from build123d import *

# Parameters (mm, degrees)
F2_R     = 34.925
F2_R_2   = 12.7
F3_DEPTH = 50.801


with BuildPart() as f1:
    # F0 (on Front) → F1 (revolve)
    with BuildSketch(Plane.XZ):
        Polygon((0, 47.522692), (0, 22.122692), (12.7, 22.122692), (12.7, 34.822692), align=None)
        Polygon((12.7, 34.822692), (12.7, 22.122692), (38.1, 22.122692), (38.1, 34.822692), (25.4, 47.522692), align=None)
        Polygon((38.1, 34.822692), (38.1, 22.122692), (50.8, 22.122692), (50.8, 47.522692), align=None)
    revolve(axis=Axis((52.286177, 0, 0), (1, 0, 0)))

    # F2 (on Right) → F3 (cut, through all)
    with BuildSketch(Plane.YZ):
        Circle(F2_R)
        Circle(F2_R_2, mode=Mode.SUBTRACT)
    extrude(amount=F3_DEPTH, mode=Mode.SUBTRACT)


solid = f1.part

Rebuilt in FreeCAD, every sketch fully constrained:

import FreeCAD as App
import Part
import Sketcher
from FreeCAD import Vector
Q = App.Units.Quantity

doc = App.newDocument("Part")
body = doc.addObject("PartDesign::Body", "Body")
body.AllowCompound = True

# Sketch on XZ plane
sketch1 = body.newObject("Sketcher::SketchObject", "Sketch")
sketch1.AttachmentSupport = (doc.getObject("XZ_Plane"), [""])
sketch1.MapMode = "FlatFace"
sketch1.addGeometry(Part.LineSegment(Vector(0, 47.522692, 0), Vector(0, 22.122692, 0)), False)
sketch1.addGeometry(Part.LineSegment(Vector(0, 22.122692, 0), Vector(50.8, 22.122692, 0)), False)
sketch1.addGeometry(Part.LineSegment(Vector(50.8, 22.122692, 0), Vector(50.8, 47.522692, 0)), False)
sketch1.addGeometry(Part.LineSegment(Vector(50.8, 47.522692, 0), Vector(38.1, 34.822692, 0)), False)
sketch1.addGeometry(Part.LineSegment(Vector(38.1, 34.822692, 0), Vector(25.4, 47.522692, 0)), False)
sketch1.addGeometry(Part.LineSegment(Vector(25.4, 47.522692, 0), Vector(12.7, 34.822692, 0)), False)
sketch1.addGeometry(Part.LineSegment(Vector(12.7, 34.822692, 0), Vector(0, 47.522692, 0)), False)
sketch1.addConstraint(Sketcher.Constraint("Coincident", 0, 2, 1, 1))
sketch1.addConstraint(Sketcher.Constraint("Coincident", 1, 2, 2, 1))
sketch1.addConstraint(Sketcher.Constraint("Coincident", 2, 2, 3, 1))
sketch1.addConstraint(Sketcher.Constraint("Coincident", 3, 2, 4, 1))
sketch1.addConstraint(Sketcher.Constraint("Coincident", 4, 2, 5, 1))
sketch1.addConstraint(Sketcher.Constraint("Coincident", 5, 2, 6, 1))
sketch1.addConstraint(Sketcher.Constraint("Coincident", 6, 2, 0, 1))
sketch1.addConstraint(Sketcher.Constraint("Vertical", 0))
sketch1.addConstraint(Sketcher.Constraint("Horizontal", 1))
sketch1.addConstraint(Sketcher.Constraint("Vertical", 2))
sketch1.addConstraint(Sketcher.Constraint("PointOnObject", 0, 2, -2))
sketch1.addConstraint(Sketcher.Constraint("Perpendicular", 3, 4))
sketch1.addConstraint(Sketcher.Constraint("Perpendicular", 4, 5))
sketch1.addConstraint(Sketcher.Constraint("Perpendicular", 5, 6))
sketch1.addConstraint(Sketcher.Constraint("Horizontal", 2, 2, 4, 2))
sketch1.addConstraint(Sketcher.Constraint("Horizontal", 3, 2, 5, 2))
sketch1.addConstraint(Sketcher.Constraint("Horizontal", 4, 2, 6, 2))
sketch1.addConstraint(Sketcher.Constraint("Equal", 3, 4))
sketch1.addConstraint(Sketcher.Constraint("DistanceX", 1, 1, 1, 2, Q("2 in")))
sketch1.addConstraint(Sketcher.Constraint("DistanceY", 0, 2, 0, 1, Q("1 in")))
sketch1.addConstraint(Sketcher.Constraint("DistanceY", -1, 1, 0, 2, Q("22.122692 mm")))
revolution = body.newObject("PartDesign::Revolution", "Revolution")
revolution.Profile = sketch1
revolution.ReferenceAxis = (sketch1, ["H_Axis"])
revolution.Angle = 360

# Sketch on YZ plane
sketch2 = body.newObject("Sketcher::SketchObject", "Sketch001")
sketch2.AttachmentSupport = (doc.getObject("YZ_Plane"), [""])
sketch2.MapMode = "FlatFace"
sketch2.addGeometry(Part.Circle(Vector(0, 0, 0), Vector(0, 0, 1), 34.925), False)
sketch2.addGeometry(Part.Circle(Vector(0, 0, 0), Vector(0, 0, 1), 12.7), False)
sketch2.addConstraint(Sketcher.Constraint("Coincident", 0, 3, -1, 1))
sketch2.addConstraint(Sketcher.Constraint("Coincident", 1, 3, -1, 1))
sketch2.addConstraint(Sketcher.Constraint("Diameter", 1, Q("1 in")))
sketch2.addConstraint(Sketcher.Constraint("Diameter", 0, Q("2.75 in")))
pocket1 = body.newObject("PartDesign::Pocket", "Pocket")
pocket1.Profile = sketch2
pocket1.Type = "ThroughAll"
pocket1.Reversed = True

doc.recompute()
